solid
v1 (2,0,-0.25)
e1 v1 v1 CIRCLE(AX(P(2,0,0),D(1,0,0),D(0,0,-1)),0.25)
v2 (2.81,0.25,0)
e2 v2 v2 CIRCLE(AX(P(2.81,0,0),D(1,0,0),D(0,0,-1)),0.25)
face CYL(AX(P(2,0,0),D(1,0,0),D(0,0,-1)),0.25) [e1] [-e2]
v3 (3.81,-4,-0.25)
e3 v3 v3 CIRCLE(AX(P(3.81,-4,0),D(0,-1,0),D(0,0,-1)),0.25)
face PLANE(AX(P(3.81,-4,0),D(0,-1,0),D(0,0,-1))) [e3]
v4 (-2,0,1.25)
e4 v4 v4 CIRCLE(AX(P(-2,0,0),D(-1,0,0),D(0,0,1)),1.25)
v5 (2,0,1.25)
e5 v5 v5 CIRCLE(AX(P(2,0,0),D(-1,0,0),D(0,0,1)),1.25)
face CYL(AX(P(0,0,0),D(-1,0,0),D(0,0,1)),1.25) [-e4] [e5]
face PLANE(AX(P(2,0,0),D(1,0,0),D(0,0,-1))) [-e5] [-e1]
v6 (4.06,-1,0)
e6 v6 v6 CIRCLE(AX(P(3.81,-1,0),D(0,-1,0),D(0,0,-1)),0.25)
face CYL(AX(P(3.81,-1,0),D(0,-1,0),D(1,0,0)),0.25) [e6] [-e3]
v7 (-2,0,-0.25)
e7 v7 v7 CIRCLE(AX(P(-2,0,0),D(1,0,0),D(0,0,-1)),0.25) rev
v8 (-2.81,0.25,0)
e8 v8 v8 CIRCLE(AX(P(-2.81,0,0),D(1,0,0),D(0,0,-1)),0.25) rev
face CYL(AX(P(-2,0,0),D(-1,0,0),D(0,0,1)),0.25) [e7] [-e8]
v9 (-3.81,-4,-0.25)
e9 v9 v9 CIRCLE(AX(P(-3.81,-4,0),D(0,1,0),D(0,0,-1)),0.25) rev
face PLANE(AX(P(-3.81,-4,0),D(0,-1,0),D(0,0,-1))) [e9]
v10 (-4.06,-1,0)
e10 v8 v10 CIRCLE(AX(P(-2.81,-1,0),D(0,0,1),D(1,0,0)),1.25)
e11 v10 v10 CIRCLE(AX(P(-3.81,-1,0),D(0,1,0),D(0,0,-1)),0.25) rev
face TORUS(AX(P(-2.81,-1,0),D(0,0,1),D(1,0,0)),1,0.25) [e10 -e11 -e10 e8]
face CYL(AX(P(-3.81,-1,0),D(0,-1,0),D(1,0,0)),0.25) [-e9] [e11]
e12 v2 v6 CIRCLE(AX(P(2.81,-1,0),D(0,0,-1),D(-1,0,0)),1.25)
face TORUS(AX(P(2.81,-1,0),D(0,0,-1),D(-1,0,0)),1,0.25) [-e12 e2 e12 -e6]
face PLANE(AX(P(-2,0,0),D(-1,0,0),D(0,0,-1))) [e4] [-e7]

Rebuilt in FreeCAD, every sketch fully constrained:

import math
import FreeCAD as App
import Part
import Sketcher
Q = App.Units.Quantity


def add_polygon(sketch, points):
    """Adds a closed chain of lines whose ends are joined by coincident constraints."""
    first, n = sketch.GeometryCount, len(points)
    for a, b in zip(points, points[1:] + points[:1]):
        sketch.addGeometry(Part.LineSegment(App.Vector(*a, 0), App.Vector(*b, 0)), False)
    for i in range(n):
        sketch.addConstraint(Sketcher.Constraint("Coincident", first + i, 2, first + (i + 1) % n, 1))

doc = App.newDocument("Part")
body = doc.addObject("PartDesign::Body", "Body")

# Sketch on XY plane
sketch1 = body.newObject("Sketcher::SketchObject", "Sketch")
sketch1.AttachmentSupport = (doc.getObject("XY_Plane"), [""])
sketch1.MapMode = "FlatFace"
add_polygon(sketch1, [(0, 0), (0, -1.25), (2, -1.25), (2, 0)])  # lines 0-3
sketch1.addConstraint([
    Sketcher.Constraint("Vertical", 0),
    Sketcher.Constraint("Horizontal", 1),
    Sketcher.Constraint("Vertical", 2),
    Sketcher.Constraint("Horizontal", 3),
    Sketcher.Constraint("Coincident", 3, 2, -1, 1),
    Sketcher.Constraint("DistanceX", 1, 1, 1, 2, Q("2 mm")),
    Sketcher.Constraint("DistanceY", 0, 2, 0, 1, Q("1.25 mm")),
])
revolution = body.newObject("PartDesign::Revolution", "Revolution")
revolution.Profile = sketch1
revolution.ReferenceAxis = (sketch1, ["H_Axis"])
revolution.Angle = 360

# Sketch on YZ plane
sketch2 = body.newObject("Sketcher::SketchObject", "Sketch001")
sketch2.AttachmentSupport = (doc.getObject("YZ_Plane"), [""])
sketch2.MapMode = "FlatFace"
sketch2.AttachmentOffset = App.Placement(App.Vector(0, 0, 2), App.Rotation())
sketch2.addGeometry(Part.Circle(App.Vector(0, 0, 0), App.Vector(0, 0, 1), 0.25), False)
sketch2.addConstraint([
    Sketcher.Constraint("Coincident", 0, 3, -1, 1),
    Sketcher.Constraint("Diameter", 0, Q("0.5 mm")),
])

# Sketch on XY plane
sketch3 = body.newObject("Sketcher::SketchObject", "Sketch002")
sketch3.AttachmentSupport = (doc.getObject("XY_Plane"), [""])
sketch3.MapMode = "FlatFace"
sketch3.addGeometry([
    Part.LineSegment(App.Vector(2, 0, 0), App.Vector(2.81, 0, 0)),
    Part.ArcOfCircle(Part.Circle(App.Vector(2.81, -1, 0), App.Vector(0, 0, 1), 1), math.radians(0), math.radians(90)),
    Part.LineSegment(App.Vector(3.81, -1, 0), App.Vector(3.81, -4, 0)),
], False)
sketch3.addConstraint([
    Sketcher.Constraint("Tangent", 0, 2, 1, 2),
    Sketcher.Constraint("Tangent", 1, 1, 2, 1),
    Sketcher.Constraint("Horizontal", 0),
    Sketcher.Constraint("Vertical", 2),
    Sketcher.Constraint("PointOnObject", 0, 1, -1),
    Sketcher.Constraint("Radius", 1, Q("1 mm")),
    Sketcher.Constraint("DistanceY", 2, 2, 2, 1, Q("3 mm")),
    Sketcher.Constraint("DistanceX", -1, 1, 0, 1, Q("2 mm")),
    Sketcher.Constraint("DistanceX", 0, 1, 0, 2, Q("0.81 mm")),
])
doc.recompute()

additivepipe = body.newObject("PartDesign::AdditivePipe", "AdditivePipe")
additivepipe.Profile = sketch2
additivepipe.Spine = (sketch3, ["Edge1", "Edge2", "Edge3"])
doc.recompute()

mirrored = body.newObject("PartDesign::Mirrored", "Mirrored")
mirrored.Originals = [revolution, additivepipe]
mirrored.MirrorPlane = (doc.getObject("YZ_Plane"), [""])
body.Tip = mirrored

doc.recompute()
